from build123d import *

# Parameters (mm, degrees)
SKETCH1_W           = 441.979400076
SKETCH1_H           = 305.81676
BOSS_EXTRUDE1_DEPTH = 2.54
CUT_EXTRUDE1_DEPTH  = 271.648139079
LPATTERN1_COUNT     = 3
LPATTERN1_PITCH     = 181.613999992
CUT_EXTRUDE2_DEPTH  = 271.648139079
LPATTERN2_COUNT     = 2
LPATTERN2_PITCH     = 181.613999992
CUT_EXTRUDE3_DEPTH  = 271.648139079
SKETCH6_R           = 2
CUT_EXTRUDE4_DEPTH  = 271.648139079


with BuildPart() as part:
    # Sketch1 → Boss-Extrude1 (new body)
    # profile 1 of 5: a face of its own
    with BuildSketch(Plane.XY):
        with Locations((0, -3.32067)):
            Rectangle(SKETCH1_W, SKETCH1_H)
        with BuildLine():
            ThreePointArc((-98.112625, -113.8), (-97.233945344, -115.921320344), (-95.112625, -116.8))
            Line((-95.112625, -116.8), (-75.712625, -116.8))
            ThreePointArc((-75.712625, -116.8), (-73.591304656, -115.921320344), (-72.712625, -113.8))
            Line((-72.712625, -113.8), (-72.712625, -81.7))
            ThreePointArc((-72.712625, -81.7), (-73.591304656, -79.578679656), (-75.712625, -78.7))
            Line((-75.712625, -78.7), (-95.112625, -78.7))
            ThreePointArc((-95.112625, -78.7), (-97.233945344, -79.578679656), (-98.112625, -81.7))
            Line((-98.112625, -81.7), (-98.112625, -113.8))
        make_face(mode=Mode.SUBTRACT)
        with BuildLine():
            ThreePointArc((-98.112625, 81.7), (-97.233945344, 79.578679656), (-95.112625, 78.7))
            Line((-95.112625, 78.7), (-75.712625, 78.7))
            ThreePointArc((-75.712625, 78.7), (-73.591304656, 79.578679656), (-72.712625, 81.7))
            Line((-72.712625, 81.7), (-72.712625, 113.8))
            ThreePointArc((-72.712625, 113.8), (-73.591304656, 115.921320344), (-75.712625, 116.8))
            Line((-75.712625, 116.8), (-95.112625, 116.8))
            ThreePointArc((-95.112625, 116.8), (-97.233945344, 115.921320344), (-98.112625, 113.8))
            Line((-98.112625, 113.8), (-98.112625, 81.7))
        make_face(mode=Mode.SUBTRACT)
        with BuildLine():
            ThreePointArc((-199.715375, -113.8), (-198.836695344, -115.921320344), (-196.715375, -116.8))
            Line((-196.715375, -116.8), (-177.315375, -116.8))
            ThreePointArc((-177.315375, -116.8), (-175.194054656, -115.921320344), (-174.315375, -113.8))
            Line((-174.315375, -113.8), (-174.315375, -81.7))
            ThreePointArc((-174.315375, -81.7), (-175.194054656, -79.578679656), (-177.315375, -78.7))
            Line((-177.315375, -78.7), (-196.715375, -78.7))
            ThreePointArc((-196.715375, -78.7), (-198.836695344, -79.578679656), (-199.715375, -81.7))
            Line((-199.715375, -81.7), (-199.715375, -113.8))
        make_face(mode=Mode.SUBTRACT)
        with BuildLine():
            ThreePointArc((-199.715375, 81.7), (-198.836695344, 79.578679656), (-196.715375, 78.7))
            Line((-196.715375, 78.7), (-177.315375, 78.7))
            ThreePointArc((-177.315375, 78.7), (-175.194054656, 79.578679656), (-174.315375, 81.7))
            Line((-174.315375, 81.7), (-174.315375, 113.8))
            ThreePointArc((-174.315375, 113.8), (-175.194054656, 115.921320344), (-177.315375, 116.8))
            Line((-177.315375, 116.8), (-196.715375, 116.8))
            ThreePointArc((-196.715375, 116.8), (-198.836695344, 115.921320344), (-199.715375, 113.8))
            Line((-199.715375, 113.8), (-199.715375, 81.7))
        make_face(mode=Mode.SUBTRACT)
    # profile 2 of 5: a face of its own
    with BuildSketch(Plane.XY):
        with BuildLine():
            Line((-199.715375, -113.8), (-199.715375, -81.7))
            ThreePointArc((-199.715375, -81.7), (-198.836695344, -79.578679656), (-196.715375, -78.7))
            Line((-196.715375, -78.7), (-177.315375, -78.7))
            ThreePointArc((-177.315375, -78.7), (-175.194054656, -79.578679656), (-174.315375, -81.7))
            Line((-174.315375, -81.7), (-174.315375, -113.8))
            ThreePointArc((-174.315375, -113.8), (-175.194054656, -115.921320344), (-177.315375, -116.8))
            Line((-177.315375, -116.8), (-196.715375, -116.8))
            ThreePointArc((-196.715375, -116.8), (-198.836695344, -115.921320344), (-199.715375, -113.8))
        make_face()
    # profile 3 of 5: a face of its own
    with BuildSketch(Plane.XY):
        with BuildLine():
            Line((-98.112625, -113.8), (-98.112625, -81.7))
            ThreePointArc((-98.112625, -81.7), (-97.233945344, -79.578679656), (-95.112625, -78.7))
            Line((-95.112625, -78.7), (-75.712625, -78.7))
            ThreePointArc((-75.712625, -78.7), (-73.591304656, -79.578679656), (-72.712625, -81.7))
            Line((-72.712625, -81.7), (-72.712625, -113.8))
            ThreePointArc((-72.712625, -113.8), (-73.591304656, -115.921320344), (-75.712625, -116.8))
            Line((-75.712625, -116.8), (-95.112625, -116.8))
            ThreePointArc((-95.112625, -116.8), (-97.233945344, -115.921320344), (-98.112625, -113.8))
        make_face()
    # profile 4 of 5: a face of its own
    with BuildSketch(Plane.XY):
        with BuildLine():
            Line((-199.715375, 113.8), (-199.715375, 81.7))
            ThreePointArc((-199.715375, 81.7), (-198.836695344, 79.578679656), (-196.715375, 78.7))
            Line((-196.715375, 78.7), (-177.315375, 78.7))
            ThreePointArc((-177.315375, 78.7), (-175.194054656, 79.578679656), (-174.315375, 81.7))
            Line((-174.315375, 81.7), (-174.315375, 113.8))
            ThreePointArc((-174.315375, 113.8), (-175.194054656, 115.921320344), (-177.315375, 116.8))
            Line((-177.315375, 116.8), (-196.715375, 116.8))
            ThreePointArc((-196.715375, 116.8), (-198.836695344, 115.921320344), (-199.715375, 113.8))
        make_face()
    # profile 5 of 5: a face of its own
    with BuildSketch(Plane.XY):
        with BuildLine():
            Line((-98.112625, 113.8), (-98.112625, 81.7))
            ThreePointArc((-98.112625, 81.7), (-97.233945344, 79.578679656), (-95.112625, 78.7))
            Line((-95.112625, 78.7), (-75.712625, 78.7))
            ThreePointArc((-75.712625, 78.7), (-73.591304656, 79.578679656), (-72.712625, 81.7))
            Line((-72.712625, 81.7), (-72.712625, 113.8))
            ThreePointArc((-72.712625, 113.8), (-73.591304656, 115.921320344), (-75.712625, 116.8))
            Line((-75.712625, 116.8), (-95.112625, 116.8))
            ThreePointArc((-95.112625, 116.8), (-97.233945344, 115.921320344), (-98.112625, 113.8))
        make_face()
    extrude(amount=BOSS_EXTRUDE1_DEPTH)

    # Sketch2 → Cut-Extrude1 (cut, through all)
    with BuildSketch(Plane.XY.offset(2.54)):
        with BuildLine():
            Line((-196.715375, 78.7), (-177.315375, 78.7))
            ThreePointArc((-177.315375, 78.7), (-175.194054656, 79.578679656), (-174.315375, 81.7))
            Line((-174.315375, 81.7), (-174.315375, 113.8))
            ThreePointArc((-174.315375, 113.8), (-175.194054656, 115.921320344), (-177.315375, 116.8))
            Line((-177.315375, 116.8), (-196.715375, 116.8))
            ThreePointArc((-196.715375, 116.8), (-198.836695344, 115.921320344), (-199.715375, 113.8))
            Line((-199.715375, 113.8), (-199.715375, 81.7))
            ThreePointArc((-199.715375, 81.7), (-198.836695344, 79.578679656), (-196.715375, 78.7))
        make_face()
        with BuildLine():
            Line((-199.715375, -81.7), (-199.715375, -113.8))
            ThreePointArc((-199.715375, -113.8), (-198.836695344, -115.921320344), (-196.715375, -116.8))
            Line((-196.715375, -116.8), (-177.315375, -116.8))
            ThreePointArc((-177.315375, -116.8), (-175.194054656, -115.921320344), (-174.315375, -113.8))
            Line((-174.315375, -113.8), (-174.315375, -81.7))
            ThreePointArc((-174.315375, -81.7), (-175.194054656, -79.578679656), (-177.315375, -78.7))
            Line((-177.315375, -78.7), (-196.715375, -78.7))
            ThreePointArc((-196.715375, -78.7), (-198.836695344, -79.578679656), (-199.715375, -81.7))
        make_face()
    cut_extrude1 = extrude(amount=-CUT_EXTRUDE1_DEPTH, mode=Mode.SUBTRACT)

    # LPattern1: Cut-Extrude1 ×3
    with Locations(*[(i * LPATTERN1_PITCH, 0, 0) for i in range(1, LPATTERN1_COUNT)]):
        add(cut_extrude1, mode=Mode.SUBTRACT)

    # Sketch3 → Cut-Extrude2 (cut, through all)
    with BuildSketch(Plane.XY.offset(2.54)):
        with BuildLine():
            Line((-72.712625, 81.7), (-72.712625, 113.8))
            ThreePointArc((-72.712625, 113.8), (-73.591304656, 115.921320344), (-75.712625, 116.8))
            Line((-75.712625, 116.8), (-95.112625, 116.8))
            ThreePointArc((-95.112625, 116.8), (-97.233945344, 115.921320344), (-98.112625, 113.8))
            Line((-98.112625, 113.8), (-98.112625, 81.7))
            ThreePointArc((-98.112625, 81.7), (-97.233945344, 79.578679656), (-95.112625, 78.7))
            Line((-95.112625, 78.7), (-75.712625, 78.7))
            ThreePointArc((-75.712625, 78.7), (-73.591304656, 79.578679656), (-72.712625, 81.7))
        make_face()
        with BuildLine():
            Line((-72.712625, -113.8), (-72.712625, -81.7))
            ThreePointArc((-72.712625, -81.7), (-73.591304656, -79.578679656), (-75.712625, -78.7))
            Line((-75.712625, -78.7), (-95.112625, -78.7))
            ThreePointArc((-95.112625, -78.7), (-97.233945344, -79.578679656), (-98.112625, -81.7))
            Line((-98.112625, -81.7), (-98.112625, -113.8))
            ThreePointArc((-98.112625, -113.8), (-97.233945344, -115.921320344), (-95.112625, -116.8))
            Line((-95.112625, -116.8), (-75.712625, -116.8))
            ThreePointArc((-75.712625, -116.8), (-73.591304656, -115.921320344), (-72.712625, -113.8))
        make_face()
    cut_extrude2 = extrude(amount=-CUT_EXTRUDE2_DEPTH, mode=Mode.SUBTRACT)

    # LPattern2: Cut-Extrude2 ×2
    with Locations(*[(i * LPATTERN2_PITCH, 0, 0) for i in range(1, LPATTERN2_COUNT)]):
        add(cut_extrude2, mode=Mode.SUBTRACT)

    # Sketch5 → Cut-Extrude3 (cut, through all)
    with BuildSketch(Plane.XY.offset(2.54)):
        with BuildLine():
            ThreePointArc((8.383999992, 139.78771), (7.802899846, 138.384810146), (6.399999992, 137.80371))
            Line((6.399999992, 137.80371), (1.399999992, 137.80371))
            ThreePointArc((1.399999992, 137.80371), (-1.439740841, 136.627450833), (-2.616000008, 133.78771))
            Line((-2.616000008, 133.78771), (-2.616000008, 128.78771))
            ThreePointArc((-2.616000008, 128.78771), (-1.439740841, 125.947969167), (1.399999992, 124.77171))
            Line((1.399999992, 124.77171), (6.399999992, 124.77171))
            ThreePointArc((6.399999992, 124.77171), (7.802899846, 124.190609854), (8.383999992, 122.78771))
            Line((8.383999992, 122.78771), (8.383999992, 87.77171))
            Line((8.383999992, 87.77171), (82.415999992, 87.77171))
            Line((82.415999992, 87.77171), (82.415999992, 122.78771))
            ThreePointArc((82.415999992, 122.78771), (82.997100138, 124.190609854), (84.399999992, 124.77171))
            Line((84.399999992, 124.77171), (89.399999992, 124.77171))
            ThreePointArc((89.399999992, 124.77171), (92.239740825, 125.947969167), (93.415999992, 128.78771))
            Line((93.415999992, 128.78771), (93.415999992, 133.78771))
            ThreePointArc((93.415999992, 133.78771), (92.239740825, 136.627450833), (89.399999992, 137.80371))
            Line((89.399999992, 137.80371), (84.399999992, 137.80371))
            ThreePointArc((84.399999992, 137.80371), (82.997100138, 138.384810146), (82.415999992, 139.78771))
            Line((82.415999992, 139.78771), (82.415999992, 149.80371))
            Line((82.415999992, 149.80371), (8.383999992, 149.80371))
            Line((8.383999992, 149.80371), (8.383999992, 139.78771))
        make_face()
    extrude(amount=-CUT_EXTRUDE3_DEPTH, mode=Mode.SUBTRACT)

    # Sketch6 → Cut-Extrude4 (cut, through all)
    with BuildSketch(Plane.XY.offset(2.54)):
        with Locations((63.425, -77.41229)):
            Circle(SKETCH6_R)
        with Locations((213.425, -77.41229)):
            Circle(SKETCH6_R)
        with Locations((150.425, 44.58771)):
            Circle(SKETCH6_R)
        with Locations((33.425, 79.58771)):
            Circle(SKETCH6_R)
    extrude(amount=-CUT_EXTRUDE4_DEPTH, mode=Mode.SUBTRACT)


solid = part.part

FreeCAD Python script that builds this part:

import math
import FreeCAD as App
import Part
import Sketcher
from FreeCAD import Vector


def add_polygon(sketch, points):
    """Adds a closed chain of lines whose ends are joined by coincident constraints."""
    first, n = sketch.GeometryCount, len(points)
    for a, b in zip(points, points[1:] + points[:1]):
        sketch.addGeometry(Part.LineSegment(App.Vector(*a, 0), App.Vector(*b, 0)), False)
    for i in range(n):
        sketch.addConstraint(Sketcher.Constraint("Coincident", first + i, 2, first + (i + 1) % n, 1))

doc = App.newDocument("Part")
params = doc.addObject("Spreadsheet::Sheet", "Params")
for row, (alias, value) in enumerate([
    ("pad1_length", "2.54 mm"),
    ("sketch2_radius", "3 mm"),
    ("sketch2_width", "19.4 mm"),
    ("sketch2_height", "32.1 mm"),
    ("linearpattern_pitch", "181.614 mm"),
    ("sketch3_radius", "3 mm"),
    ("sketch3_width", "19.4 mm"),
    ("sketch3_height", "32.1 mm"),
    ("linearpattern2_pitch", "181.614 mm"),
    ("sketch4_width", "5 mm"),
    ("sketch5_diameter", "4 mm"),
], start=1):
    params.set(f"A{row}", alias)
    params.set(f"B{row}", "=" + value)
    params.setAlias(f"B{row}", alias)

body = doc.addObject("PartDesign::Body", "Body")

sketch1 = body.newObject("Sketcher::SketchObject", "Sketch")
sketch1.AttachmentSupport = (doc.getObject("XY_Plane"), [""])
sketch1.MapMode = "FlatFace"
add_polygon(sketch1, [(-221, 150), (-221, -156), (221, -156), (221, 150)])
sketch1.addConstraint([
    Sketcher.Constraint("Vertical", 0),
    Sketcher.Constraint("Horizontal", 1),
    Sketcher.Constraint("Vertical", 2),
    Sketcher.Constraint("Horizontal", 3),
    Sketcher.Constraint("DistanceX", 1, 1, 1, 2, 441.9794),
    Sketcher.Constraint("DistanceY", 0, 2, 0, 1, 305.81676),
    Sketcher.Constraint("DistanceX", 0, 2, -1, 1, 220.9897),
    Sketcher.Constraint("DistanceY", 0, 2, -1, 1, 156.22905),
])
pad1 = body.newObject("PartDesign::Pad", "Pad")
pad1.Profile = sketch1
pad1.setExpression("Length", "Params.pad1_length")

sketch2 = body.newObject("Sketcher::SketchObject", "Sketch001")
sketch2.AttachmentSupport = (doc.getObject("XY_Plane"), [""])
sketch2.MapMode = "FlatFace"
sketch2.AttachmentOffset = App.Placement(Vector(0, 0, 2.54), App.Rotation())
sketch2.addGeometry([
    Part.LineSegment(Vector(-196.7, 78.7, 0), Vector(-177.3, 78.7, 0)),
    Part.ArcOfCircle(Part.Circle(Vector(-177.3, 81.7, 0), Vector(0, 0, 1), 3), math.radians(-90), math.radians(0)),
    Part.LineSegment(Vector(-174.3, 81.7, 0), Vector(-174.3, 113.8, 0)),
    Part.ArcOfCircle(Part.Circle(Vector(-177.3, 113.8, 0), Vector(0, 0, 1), 3), math.radians(0), math.radians(90)),
    Part.LineSegment(Vector(-177.3, 116.8, 0), Vector(-196.7, 116.8, 0)),
    Part.ArcOfCircle(Part.Circle(Vector(-196.7, 113.8, 0), Vector(0, 0, 1), 3), math.radians(90), math.radians(180)),
    Part.LineSegment(Vector(-199.7, 113.8, 0), Vector(-199.7, 81.7, 0)),
    Part.ArcOfCircle(Part.Circle(Vector(-196.7, 81.7, 0), Vector(0, 0, 1), 3), math.radians(180), math.radians(270)),
    Part.LineSegment(Vector(-199.7, -81.7, 0), Vector(-199.7, -113.8, 0)),
    Part.ArcOfCircle(Part.Circle(Vector(-196.7, -113.8, 0), Vector(0, 0, 1), 3), math.radians(180), math.radians(270)),
    Part.LineSegment(Vector(-196.7, -116.8, 0), Vector(-177.3, -116.8, 0)),
    Part.ArcOfCircle(Part.Circle(Vector(-177.3, -113.8, 0), Vector(0, 0, 1), 3), math.radians(-90), math.radians(0)),
    Part.LineSegment(Vector(-174.3, -113.8, 0), Vector(-174.3, -81.7, 0)),
    Part.ArcOfCircle(Part.Circle(Vector(-177.3, -81.7, 0), Vector(0, 0, 1), 3), math.radians(0), math.radians(90)),
    Part.LineSegment(Vector(-177.3, -78.7, 0), Vector(-196.7, -78.7, 0)),
    Part.ArcOfCircle(Part.Circle(Vector(-196.7, -81.7, 0), Vector(0, 0, 1), 3), math.radians(90), math.radians(180)),
], False)
sketch2.addConstraint([
    Sketcher.Constraint("Tangent", 0, 2, 1, 1),
    Sketcher.Constraint("Tangent", 1, 2, 2, 1),
    Sketcher.Constraint("Tangent", 2, 2, 3, 1),
    Sketcher.Constraint("Tangent", 3, 2, 4, 1),
    Sketcher.Constraint("Tangent", 4, 2, 5, 1),
    Sketcher.Constraint("Tangent", 5, 2, 6, 1),
    Sketcher.Constraint("Tangent", 6, 2, 7, 1),
    Sketcher.Constraint("Tangent", 7, 2, 0, 1),
    Sketcher.Constraint("Tangent", 8, 2, 9, 1),
    Sketcher.Constraint("Tangent", 9, 2, 10, 1),
    Sketcher.Constraint("Tangent", 10, 2, 11, 1),
    Sketcher.Constraint("Tangent", 11, 2, 12, 1),
    Sketcher.Constraint("Tangent", 12, 2, 13, 1),
    Sketcher.Constraint("Tangent", 13, 2, 14, 1),
    Sketcher.Constraint("Tangent", 14, 2, 15, 1),
    Sketcher.Constraint("Tangent", 15, 2, 8, 1),
    Sketcher.Constraint("Horizontal", 0),
    Sketcher.Constraint("Vertical", 2),
    Sketcher.Constraint("Horizontal", 4),
    Sketcher.Constraint("Vertical", 6),
    Sketcher.Constraint("Vertical", 8),
    Sketcher.Constraint("Horizontal", 10),
    Sketcher.Constraint("Vertical", 12),
    Sketcher.Constraint("Horizontal", 14),
    Sketcher.Constraint("Equal", 1, 3),
    Sketcher.Constraint("Equal", 3, 5),
    Sketcher.Constraint("Equal", 5, 7),
    Sketcher.Constraint("Equal", 7, 9),
    Sketcher.Constraint("Equal", 9, 11),
    Sketcher.Constraint("Equal", 11, 13),
    Sketcher.Constraint("Equal", 13, 15),
    Sketcher.Constraint("Symmetric", 5, 3, 9, 3, -1),
    Sketcher.Constraint("Symmetric", 1, 3, 13, 3, -1),
    Sketcher.Constraint("Radius", 1, 3.0),
    Sketcher.Constraint("DistanceX", 0, 1, 0, 2, 19.4),
    Sketcher.Constraint("DistanceY", 2, 1, 2, 2, 32.1),
    Sketcher.Constraint("DistanceY", -1, 1, 1, 3, 81.7),
    Sketcher.Constraint("DistanceX", 1, 3, -1, 1, 177.315375),
])
sketch2.setExpression("Constraints[33]", "Params.sketch2_radius")
sketch2.setExpression("Constraints[34]", "Params.sketch2_width")
sketch2.setExpression("Constraints[35]", "Params.sketch2_height")
pocket1 = body.newObject("PartDesign::Pocket", "Pocket")
pocket1.Profile = sketch2
pocket1.Type = "ThroughAll"
doc.recompute()

linearpattern = body.newObject("PartDesign::LinearPattern", "LinearPattern")
linearpattern.Originals = [pocket1]
linearpattern.Direction = (doc.getObject("X_Axis"), [""])
linearpattern.Mode = "offset"
linearpattern.setExpression("Offset", "Params.linearpattern_pitch")
linearpattern.Occurrences = 3
body.Tip = linearpattern

sketch3 = body.newObject("Sketcher::SketchObject", "Sketch002")
sketch3.AttachmentSupport = (doc.getObject("XY_Plane"), [""])
sketch3.MapMode = "FlatFace"
sketch3.AttachmentOffset = App.Placement(Vector(0, 0, 2.54), App.Rotation())
sketch3.addGeometry([
    Part.LineSegment(Vector(-72.7, 81.7, 0), Vector(-72.7, 113.8, 0)),
    Part.ArcOfCircle(Part.Circle(Vector(-75.7, 113.8, 0), Vector(0, 0, 1), 3), math.radians(0), math.radians(90)),
    Part.LineSegment(Vector(-75.7, 116.8, 0), Vector(-95.1, 116.8, 0)),
    Part.ArcOfCircle(Part.Circle(Vector(-95.1, 113.8, 0), Vector(0, 0, 1), 3), math.radians(90), math.radians(180)),
    Part.LineSegment(Vector(-98.1, 113.8, 0), Vector(-98.1, 81.7, 0)),
    Part.ArcOfCircle(Part.Circle(Vector(-95.1, 81.7, 0), Vector(0, 0, 1), 3), math.radians(180), math.radians(270)),
    Part.LineSegment(Vector(-95.1, 78.7, 0), Vector(-75.7, 78.7, 0)),
    Part.ArcOfCircle(Part.Circle(Vector(-75.7, 81.7, 0), Vector(0, 0, 1), 3), math.radians(-90), math.radians(0)),
    Part.LineSegment(Vector(-72.7, -113.8, 0), Vector(-72.7, -81.7, 0)),
    Part.ArcOfCircle(Part.Circle(Vector(-75.7, -81.7, 0), Vector(0, 0, 1), 3), math.radians(0), math.radians(90)),
    Part.LineSegment(Vector(-75.7, -78.7, 0), Vector(-95.1, -78.7, 0)),
    Part.ArcOfCircle(Part.Circle(Vector(-95.1, -81.7, 0), Vector(0, 0, 1), 3), math.radians(90), math.radians(180)),
    Part.LineSegment(Vector(-98.1, -81.7, 0), Vector(-98.1, -113.8, 0)),
    Part.ArcOfCircle(Part.Circle(Vector(-95.1, -113.8, 0), Vector(0, 0, 1), 3), math.radians(180), math.radians(270)),
    Part.LineSegment(Vector(-95.1, -116.8, 0), Vector(-75.7, -116.8, 0)),
    Part.ArcOfCircle(Part.Circle(Vector(-75.7, -113.8, 0), Vector(0, 0, 1), 3), math.radians(-90), math.radians(0)),
], False)
sketch3.addConstraint([
    Sketcher.Constraint("Tangent", 0, 2, 1, 1),
    Sketcher.Constraint("Tangent", 1, 2, 2, 1),
    Sketcher.Constraint("Tangent", 2, 2, 3, 1),
    Sketcher.Constraint("Tangent", 3, 2, 4, 1),
    Sketcher.Constraint("Tangent", 4, 2, 5, 1),
    Sketcher.Constraint("Tangent", 5, 2, 6, 1),
    Sketcher.Constraint("Tangent", 6, 2, 7, 1),
    Sketcher.Constraint("Tangent", 7, 2, 0, 1),
    Sketcher.Constraint("Tangent", 8, 2, 9, 1),
    Sketcher.Constraint("Tangent", 9, 2, 10, 1),
    Sketcher.Constraint("Tangent", 10, 2, 11, 1),
    Sketcher.Constraint("Tangent", 11, 2, 12, 1),
    Sketcher.Constraint("Tangent", 12, 2, 13, 1),
    Sketcher.Constraint("Tangent", 13, 2, 14, 1),
    Sketcher.Constraint("Tangent", 14, 2, 15, 1),
    Sketcher.Constraint("Tangent", 15, 2, 8, 1),
    Sketcher.Constraint("Vertical", 0),
    Sketcher.Constraint("Horizontal", 2),
    Sketcher.Constraint("Vertical", 4),
    Sketcher.Constraint("Horizontal", 6),
    Sketcher.Constraint("Vertical", 8),
    Sketcher.Constraint("Horizontal", 10),
    Sketcher.Constraint("Vertical", 12),
    Sketcher.Constraint("Horizontal", 14),
    Sketcher.Constraint("Equal", 1, 3),
    Sketcher.Constraint("Equal", 3, 5),
    Sketcher.Constraint("Equal", 5, 7),
    Sketcher.Constraint("Equal", 7, 9),
    Sketcher.Constraint("Equal", 9, 11),
    Sketcher.Constraint("Equal", 11, 13),
    Sketcher.Constraint("Equal", 13, 15),
    Sketcher.Constraint("Symmetric", 7, 3, 9, 3, -1),
    Sketcher.Constraint("Symmetric", 3, 3, 13, 3, -1),
    Sketcher.Constraint("Radius", 1, 3.0),
    Sketcher.Constraint("DistanceX", 2, 2, 2, 1, 19.4),
    Sketcher.Constraint("DistanceY", 0, 1, 0, 2, 32.1),
    Sketcher.Constraint("DistanceY", -1, 1, 1, 3, 113.8),
    Sketcher.Constraint("DistanceX", 1, 3, -1, 1, 75.712625),
])
sketch3.setExpression("Constraints[33]", "Params.sketch3_radius")
sketch3.setExpression("Constraints[34]", "Params.sketch3_width")
sketch3.setExpression("Constraints[35]", "Params.sketch3_height")
pocket2 = body.newObject("PartDesign::Pocket", "Pocket001")
pocket2.Profile = sketch3
pocket2.Type = "ThroughAll"
doc.recompute()

linearpattern2 = body.newObject("PartDesign::LinearPattern", "LinearPattern001")
linearpattern2.Originals = [pocket2]
linearpattern2.Direction = (doc.getObject("X_Axis"), [""])
linearpattern2.Mode = "offset"
linearpattern2.setExpression("Offset", "Params.linearpattern2_pitch")
linearpattern2.Occurrences = 2
body.Tip = linearpattern2

sketch4 = body.newObject("Sketcher::SketchObject", "Sketch003")
sketch4.AttachmentSupport = (doc.getObject("XY_Plane"), [""])
sketch4.MapMode = "FlatFace"
sketch4.AttachmentOffset = App.Placement(Vector(0, 0, 2.54), App.Rotation())
sketch4.addGeometry([
    Part.ArcOfCircle(Part.Circle(Vector(6.4, 139.8, 0), Vector(0, 0, 1), 2), math.radians(-90), math.radians(0)),
    Part.LineSegment(Vector(6.4, 137.8, 0), Vector(1.4, 137.8, 0)),
    Part.ArcOfCircle(Part.Circle(Vector(1.4, 133.8, 0), Vector(0, 0, 1), 4), math.radians(90), math.radians(180)),
    Part.LineSegment(Vector(-2.6, 133.8, 0), Vector(-2.6, 128.8, 0)),
    Part.ArcOfCircle(Part.Circle(Vector(1.4, 128.8, 0), Vector(0, 0, 1), 4), math.radians(-180), math.radians(-90)),
    Part.LineSegment(Vector(1.4, 124.8, 0), Vector(6.4, 124.8, 0)),
    Part.ArcOfCircle(Part.Circle(Vector(6.4, 122.8, 0), Vector(0, 0, 1), 2), math.radians(0), math.radians(90)),
    Part.LineSegment(Vector(8.4, 122.8, 0), Vector(8.4, 87.8, 0)),
    Part.LineSegment(Vector(8.4, 87.8, 0), Vector(82.4, 87.8, 0)),
    Part.LineSegment(Vector(82.4, 87.8, 0), Vector(82.4, 122.8, 0)),
    Part.ArcOfCircle(Part.Circle(Vector(84.4, 122.8, 0), Vector(0, 0, 1), 2), math.radians(90), math.radians(180)),
    Part.LineSegment(Vector(84.4, 124.8, 0), Vector(89.4, 124.8, 0)),
    Part.ArcOfCircle(Part.Circle(Vector(89.4, 128.8, 0), Vector(0, 0, 1), 4), math.radians(-90), math.radians(0)),
    Part.LineSegment(Vector(93.4, 128.8, 0), Vector(93.4, 133.8, 0)),
    Part.ArcOfCircle(Part.Circle(Vector(89.4, 133.8, 0), Vector(0, 0, 1), 4), math.radians(0), math.radians(90)),
    Part.LineSegment(Vector(89.4, 137.8, 0), Vector(84.4, 137.8, 0)),
    Part.ArcOfCircle(Part.Circle(Vector(84.4, 139.8, 0), Vector(0, 0, 1), 2), math.radians(180), math.radians(270)),
    Part.LineSegment(Vector(82.4, 139.8, 0), Vector(82.4, 149.8, 0)),
    Part.LineSegment(Vector(82.4, 149.8, 0), Vector(8.4, 149.8, 0)),
    Part.LineSegment(Vector(8.4, 149.8, 0), Vector(8.4, 139.8, 0)),
], False)
sketch4.addConstraint([
    Sketcher.Constraint("Tangent", 0, 1, 1, 1),
    Sketcher.Constraint("Tangent", 1, 2, 2, 1),
    Sketcher.Constraint("Tangent", 2, 2, 3, 1),
    Sketcher.Constraint("Tangent", 3, 2, 4, 1),
    Sketcher.Constraint("Tangent", 4, 2, 5, 1),
    Sketcher.Constraint("Tangent", 5, 2, 6, 2),
    Sketcher.Constraint("Tangent", 6, 1, 7, 1),
    Sketcher.Constraint("Coincident", 7, 2, 8, 1),
    Sketcher.Constraint("Coincident", 8, 2, 9, 1),
    Sketcher.Constraint("Tangent", 9, 2, 10, 2),
    Sketcher.Constraint("Tangent", 10, 1, 11, 1),
    Sketcher.Constraint("Tangent", 11, 2, 12, 1),
    Sketcher.Constraint("Tangent", 12, 2, 13, 1),
    Sketcher.Constraint("Tangent", 13, 2, 14, 1),
    Sketcher.Constraint("Tangent", 14, 2, 15, 1),
    Sketcher.Constraint("Tangent", 15, 2, 16, 2),
    Sketcher.Constraint("Tangent", 16, 1, 17, 1),
    Sketcher.Constraint("Coincident", 17, 2, 18, 1),
    Sketcher.Constraint("Coincident", 18, 2, 19, 1),
    Sketcher.Constraint("Tangent", 19, 2, 0, 2),
    Sketcher.Constraint("Horizontal", 1),
    Sketcher.Constraint("Vertical", 3),
    Sketcher.Constraint("Horizontal", 5),
    Sketcher.Constraint("Vertical", 7),
    Sketcher.Constraint("Horizontal", 8),
    Sketcher.Constraint("Vertical", 9),
    Sketcher.Constraint("Horizontal", 11),
    Sketcher.Constraint("Vertical", 13),
    Sketcher.Constraint("Horizontal", 15),
    Sketcher.Constraint("Vertical", 17),
    Sketcher.Constraint("Horizontal", 18),
    Sketcher.Constraint("Vertical", 19),
    Sketcher.Constraint("Equal", 2, 4),
    Sketcher.Constraint("Equal", 0, 6),
    Sketcher.Constraint("Equal", 6, 10),
    Sketcher.Constraint("Equal", 4, 12),
    Sketcher.Constraint("Equal", 12, 14),
    Sketcher.Constraint("Equal", 10, 16),
    Sketcher.Constraint("Horizontal", 6, 3, 10, 3),
    Sketcher.Constraint("Horizontal", 2, 3, 14, 3),
    Sketcher.Constraint("Vertical", 0, 3, 6, 3),
    Sketcher.Constraint("Vertical", 10, 3, 16, 3),
    Sketcher.Constraint("Equal", 5, 11),
    Sketcher.Constraint("Equal", 15, 3),
    Sketcher.Constraint("DistanceX", 1, 2, 1, 1, 5.0),
    Sketcher.Constraint("Radius", 0, 1.984),
    Sketcher.Constraint("Radius", 2, 4.016),
    Sketcher.Constraint("DistanceX", 6, 3, 10, 3, 78.0),
    Sketcher.Constraint("DistanceY", 7, 2, 5, 2, 37.0),
    Sketcher.Constraint("DistanceY", 15, 2, 17, 2, 12.0),
    Sketcher.Constraint("DistanceX", -1, 1, 0, 3, 6.4),
    Sketcher.Constraint("DistanceY", -1, 1, 0, 3, 139.78771),
])
sketch4.setExpression("Constraints[44]", "Params.sketch4_width")
pocket3 = body.newObject("PartDesign::Pocket", "Pocket002")
pocket3.Profile = sketch4
pocket3.Type = "ThroughAll"

sketch5 = body.newObject("Sketcher::SketchObject", "Sketch004")
sketch5.AttachmentSupport = (doc.getObject("XY_Plane"), [""])
sketch5.MapMode = "FlatFace"
sketch5.AttachmentOffset = App.Placement(Vector(0, 0, 2.54), App.Rotation())
sketch5.addGeometry([
    Part.Circle(Vector(63.4, -77.4, 0), Vector(0, 0, 1), 2),
    Part.Circle(Vector(213.4, -77.4, 0), Vector(0, 0, 1), 2),
    Part.Circle(Vector(150.4, 44.6, 0), Vector(0, 0, 1), 2),
    Part.Circle(Vector(33.4, 79.6, 0), Vector(0, 0, 1), 2),
], False)
sketch5.addConstraint([
    Sketcher.Constraint("Equal", 0, 1),
    Sketcher.Constraint("Equal", 1, 2),
    Sketcher.Constraint("Equal", 2, 3),
    Sketcher.Constraint("Horizontal", 0, 3, 1, 3),
    Sketcher.Constraint("Diameter", 0, 4.0),
    Sketcher.Constraint("DistanceX", 0, 3, 1, 3, 150.0),
    Sketcher.Constraint("DistanceX", 2, 3, 1, 3, 63.0),
    Sketcher.Constraint("DistanceY", 1, 3, 2, 3, 122.0),
    Sketcher.Constraint("DistanceX", 3, 3, 2, 3, 117.0),
    Sketcher.Constraint("DistanceY", 2, 3, 3, 3, 35.0),
    Sketcher.Constraint("DistanceX", -1, 1, 0, 3, 63.425),
    Sketcher.Constraint("DistanceY", 0, 3, -1, 1, 77.41229),
])
sketch5.setExpression("Constraints[4]", "Params.sketch5_diameter")
pocket4 = body.newObject("PartDesign::Pocket", "Pocket003")
pocket4.Profile = sketch5
pocket4.Type = "ThroughAll"

doc.recompute()
